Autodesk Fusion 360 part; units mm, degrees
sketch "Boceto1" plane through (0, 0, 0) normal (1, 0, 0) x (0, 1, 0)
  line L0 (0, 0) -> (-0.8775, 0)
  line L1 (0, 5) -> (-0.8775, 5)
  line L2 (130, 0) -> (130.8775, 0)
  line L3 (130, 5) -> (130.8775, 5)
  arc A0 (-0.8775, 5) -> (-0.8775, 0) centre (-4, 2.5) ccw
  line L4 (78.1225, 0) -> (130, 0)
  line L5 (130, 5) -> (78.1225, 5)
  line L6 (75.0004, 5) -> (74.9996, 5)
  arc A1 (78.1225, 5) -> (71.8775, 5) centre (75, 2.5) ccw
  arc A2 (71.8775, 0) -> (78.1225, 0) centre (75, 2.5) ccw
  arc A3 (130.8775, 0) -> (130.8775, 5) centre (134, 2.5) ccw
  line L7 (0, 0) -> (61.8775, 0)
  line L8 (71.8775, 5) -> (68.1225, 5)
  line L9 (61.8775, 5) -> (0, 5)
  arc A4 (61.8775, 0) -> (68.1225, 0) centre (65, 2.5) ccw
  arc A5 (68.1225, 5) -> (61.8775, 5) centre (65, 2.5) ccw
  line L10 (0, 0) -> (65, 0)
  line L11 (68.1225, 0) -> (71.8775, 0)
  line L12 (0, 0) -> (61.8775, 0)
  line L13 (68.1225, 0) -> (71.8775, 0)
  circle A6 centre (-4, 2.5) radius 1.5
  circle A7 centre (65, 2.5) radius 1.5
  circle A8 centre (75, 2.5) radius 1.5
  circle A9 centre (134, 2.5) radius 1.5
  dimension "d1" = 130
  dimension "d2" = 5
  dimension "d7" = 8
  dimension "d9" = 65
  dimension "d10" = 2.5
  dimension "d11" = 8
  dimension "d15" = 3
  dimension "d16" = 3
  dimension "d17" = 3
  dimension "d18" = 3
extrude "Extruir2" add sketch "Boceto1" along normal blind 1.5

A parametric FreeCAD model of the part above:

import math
import FreeCAD as App
import Part
import Sketcher

doc = App.newDocument("Part")
body = doc.addObject("PartDesign::Body", "Body")

# Sketch on YZ plane
sketch1 = body.newObject("Sketcher::SketchObject", "Sketch")
sketch1.AttachmentSupport = (doc.getObject("YZ_Plane"), [""])
sketch1.MapMode = "FlatFace"
sketch1.addGeometry(Part.LineSegment(App.Vector(-0.9, 0, 0), App.Vector(61.9, 0, 0)), False)
sketch1.addGeometry(Part.ArcOfCircle(Part.Circle(App.Vector(65, 2.5, 0), App.Vector(0, 0, 1), 4), math.radians(-141), math.radians(-39)), False)
sketch1.addGeometry(Part.LineSegment(App.Vector(68.1, 0, 0), App.Vector(71.9, 0, 0)), False)
sketch1.addGeometry(Part.ArcOfCircle(Part.Circle(App.Vector(75, 2.5, 0), App.Vector(0, 0, 1), 4), math.radians(-141), math.radians(-39)), False)
sketch1.addGeometry(Part.LineSegment(App.Vector(78.1, 0, 0), App.Vector(130.9, 0, 0)), False)
sketch1.addGeometry(Part.ArcOfCircle(Part.Circle(App.Vector(134, 2.5, 0), App.Vector(0, 0, 1), 4), math.radians(-141), math.radians(141)), False)
sketch1.addGeometry(Part.LineSegment(App.Vector(130.9, 5, 0), App.Vector(78.1, 5, 0)), False)
sketch1.addGeometry(Part.ArcOfCircle(Part.Circle(App.Vector(75, 2.5, 0), App.Vector(0, 0, 1), 4), math.radians(39), math.radians(141)), False)
sketch1.addGeometry(Part.LineSegment(App.Vector(71.9, 5, 0), App.Vector(68.1, 5, 0)), False)
sketch1.addGeometry(Part.ArcOfCircle(Part.Circle(App.Vector(65, 2.5, 0), App.Vector(0, 0, 1), 4), math.radians(39), math.radians(141)), False)
sketch1.addGeometry(Part.LineSegment(App.Vector(61.9, 5, 0), App.Vector(-0.9, 5, 0)), False)
sketch1.addGeometry(Part.ArcOfCircle(Part.Circle(App.Vector(-4, 2.5, 0), App.Vector(0, 0, 1), 4), math.radians(39), math.radians(321)), False)
sketch1.addGeometry(Part.Circle(App.Vector(-4, 2.5, 0), App.Vector(0, 0, 1), 1.5), False)
sketch1.addGeometry(Part.Circle(App.Vector(65, 2.5, 0), App.Vector(0, 0, 1), 1.5), False)
sketch1.addGeometry(Part.Circle(App.Vector(75, 2.5, 0), App.Vector(0, 0, 1), 1.5), False)
sketch1.addGeometry(Part.Circle(App.Vector(134, 2.5, 0), App.Vector(0, 0, 1), 1.5), False)
sketch1.addConstraint(Sketcher.Constraint("Coincident", 0, 2, 1, 1))
sketch1.addConstraint(Sketcher.Constraint("Coincident", 1, 2, 2, 1))
sketch1.addConstraint(Sketcher.Constraint("Coincident", 2, 2, 3, 1))
sketch1.addConstraint(Sketcher.Constraint("Coincident", 3, 2, 4, 1))
sketch1.addConstraint(Sketcher.Constraint("Coincident", 4, 2, 5, 1))
sketch1.addConstraint(Sketcher.Constraint("Coincident", 5, 2, 6, 1))
sketch1.addConstraint(Sketcher.Constraint("Coincident", 6, 2, 7, 1))
sketch1.addConstraint(Sketcher.Constraint("Coincident", 7, 2, 8, 1))
sketch1.addConstraint(Sketcher.Constraint("Coincident", 8, 2, 9, 1))
sketch1.addConstraint(Sketcher.Constraint("Coincident", 9, 2, 10, 1))
sketch1.addConstraint(Sketcher.Constraint("Coincident", 10, 2, 11, 1))
sketch1.addConstraint(Sketcher.Constraint("Coincident", 11, 2, 0, 1))
sketch1.addConstraint(Sketcher.Constraint("Horizontal", 0))
sketch1.addConstraint(Sketcher.Constraint("Horizontal", 2))
sketch1.addConstraint(Sketcher.Constraint("Horizontal", 4))
sketch1.addConstraint(Sketcher.Constraint("Horizontal", 6))
sketch1.addConstraint(Sketcher.Constraint("Horizontal", 8))
sketch1.addConstraint(Sketcher.Constraint("Horizontal", 10))
sketch1.addConstraint(Sketcher.Constraint("Coincident", 7, 3, 3, 3))
sketch1.addConstraint(Sketcher.Constraint("Coincident", 9, 3, 1, 3))
sketch1.addConstraint(Sketcher.Constraint("Coincident", 12, 3, 11, 3))
sketch1.addConstraint(Sketcher.Constraint("Coincident", 13, 3, 1, 3))
sketch1.addConstraint(Sketcher.Constraint("Coincident", 14, 3, 3, 3))
sketch1.addConstraint(Sketcher.Constraint("Coincident", 15, 3, 5, 3))
sketch1.addConstraint(Sketcher.Constraint("Equal", 1, 3))
sketch1.addConstraint(Sketcher.Constraint("Equal", 3, 5))
sketch1.addConstraint(Sketcher.Constraint("Equal", 5, 7))
sketch1.addConstraint(Sketcher.Constraint("Equal", 7, 9))
sketch1.addConstraint(Sketcher.Constraint("Equal", 9, 11))
sketch1.addConstraint(Sketcher.Constraint("Equal", 12, 13))
sketch1.addConstraint(Sketcher.Constraint("Equal", 13, 14))
sketch1.addConstraint(Sketcher.Constraint("Equal", 14, 15))
sketch1.addConstraint(Sketcher.Constraint("PointOnObject", 0, 2, -1))
sketch1.addConstraint(Sketcher.Constraint("PointOnObject", 1, 2, -1))
sketch1.addConstraint(Sketcher.Constraint("PointOnObject", 3, 2, -1))
sketch1.addConstraint(Sketcher.Constraint("Horizontal", 1, 3, 3, 3))
sketch1.addConstraint(Sketcher.Constraint("Horizontal", 3, 3, 5, 3))
sketch1.addConstraint(Sketcher.Constraint("Horizontal", 9, 3, 11, 3))
sketch1.addConstraint(Sketcher.Constraint("Horizontal", 6, 2, 7, 2))
sketch1.addConstraint(Sketcher.Constraint("Horizontal", 8, 2, 9, 2))
sketch1.addConstraint(Sketcher.Constraint("Vertical", 4, 2, 5, 2))
sketch1.addConstraint(Sketcher.Constraint("Diameter", 12, 3.0))
sketch1.addConstraint(Sketcher.Constraint("Radius", 1, 4.0))
sketch1.addConstraint(Sketcher.Constraint("DistanceX", -1, 1, 1, 3, 65.0))
sketch1.addConstraint(Sketcher.Constraint("DistanceY", -1, 1, 5, 2, 5.0))
sketch1.addConstraint(Sketcher.Constraint("DistanceX", -1, 1, 3, 3, 75.0))
sketch1.addConstraint(Sketcher.Constraint("DistanceX", -1, 1, 5, 3, 134.0))
sketch1.addConstraint(Sketcher.Constraint("DistanceX", 11, 3, -1, 1, 4.0))
pad1 = body.newObject("PartDesign::Pad", "Pad")
pad1.Profile = sketch1
pad1.Length = 1.5

doc.recompute()
